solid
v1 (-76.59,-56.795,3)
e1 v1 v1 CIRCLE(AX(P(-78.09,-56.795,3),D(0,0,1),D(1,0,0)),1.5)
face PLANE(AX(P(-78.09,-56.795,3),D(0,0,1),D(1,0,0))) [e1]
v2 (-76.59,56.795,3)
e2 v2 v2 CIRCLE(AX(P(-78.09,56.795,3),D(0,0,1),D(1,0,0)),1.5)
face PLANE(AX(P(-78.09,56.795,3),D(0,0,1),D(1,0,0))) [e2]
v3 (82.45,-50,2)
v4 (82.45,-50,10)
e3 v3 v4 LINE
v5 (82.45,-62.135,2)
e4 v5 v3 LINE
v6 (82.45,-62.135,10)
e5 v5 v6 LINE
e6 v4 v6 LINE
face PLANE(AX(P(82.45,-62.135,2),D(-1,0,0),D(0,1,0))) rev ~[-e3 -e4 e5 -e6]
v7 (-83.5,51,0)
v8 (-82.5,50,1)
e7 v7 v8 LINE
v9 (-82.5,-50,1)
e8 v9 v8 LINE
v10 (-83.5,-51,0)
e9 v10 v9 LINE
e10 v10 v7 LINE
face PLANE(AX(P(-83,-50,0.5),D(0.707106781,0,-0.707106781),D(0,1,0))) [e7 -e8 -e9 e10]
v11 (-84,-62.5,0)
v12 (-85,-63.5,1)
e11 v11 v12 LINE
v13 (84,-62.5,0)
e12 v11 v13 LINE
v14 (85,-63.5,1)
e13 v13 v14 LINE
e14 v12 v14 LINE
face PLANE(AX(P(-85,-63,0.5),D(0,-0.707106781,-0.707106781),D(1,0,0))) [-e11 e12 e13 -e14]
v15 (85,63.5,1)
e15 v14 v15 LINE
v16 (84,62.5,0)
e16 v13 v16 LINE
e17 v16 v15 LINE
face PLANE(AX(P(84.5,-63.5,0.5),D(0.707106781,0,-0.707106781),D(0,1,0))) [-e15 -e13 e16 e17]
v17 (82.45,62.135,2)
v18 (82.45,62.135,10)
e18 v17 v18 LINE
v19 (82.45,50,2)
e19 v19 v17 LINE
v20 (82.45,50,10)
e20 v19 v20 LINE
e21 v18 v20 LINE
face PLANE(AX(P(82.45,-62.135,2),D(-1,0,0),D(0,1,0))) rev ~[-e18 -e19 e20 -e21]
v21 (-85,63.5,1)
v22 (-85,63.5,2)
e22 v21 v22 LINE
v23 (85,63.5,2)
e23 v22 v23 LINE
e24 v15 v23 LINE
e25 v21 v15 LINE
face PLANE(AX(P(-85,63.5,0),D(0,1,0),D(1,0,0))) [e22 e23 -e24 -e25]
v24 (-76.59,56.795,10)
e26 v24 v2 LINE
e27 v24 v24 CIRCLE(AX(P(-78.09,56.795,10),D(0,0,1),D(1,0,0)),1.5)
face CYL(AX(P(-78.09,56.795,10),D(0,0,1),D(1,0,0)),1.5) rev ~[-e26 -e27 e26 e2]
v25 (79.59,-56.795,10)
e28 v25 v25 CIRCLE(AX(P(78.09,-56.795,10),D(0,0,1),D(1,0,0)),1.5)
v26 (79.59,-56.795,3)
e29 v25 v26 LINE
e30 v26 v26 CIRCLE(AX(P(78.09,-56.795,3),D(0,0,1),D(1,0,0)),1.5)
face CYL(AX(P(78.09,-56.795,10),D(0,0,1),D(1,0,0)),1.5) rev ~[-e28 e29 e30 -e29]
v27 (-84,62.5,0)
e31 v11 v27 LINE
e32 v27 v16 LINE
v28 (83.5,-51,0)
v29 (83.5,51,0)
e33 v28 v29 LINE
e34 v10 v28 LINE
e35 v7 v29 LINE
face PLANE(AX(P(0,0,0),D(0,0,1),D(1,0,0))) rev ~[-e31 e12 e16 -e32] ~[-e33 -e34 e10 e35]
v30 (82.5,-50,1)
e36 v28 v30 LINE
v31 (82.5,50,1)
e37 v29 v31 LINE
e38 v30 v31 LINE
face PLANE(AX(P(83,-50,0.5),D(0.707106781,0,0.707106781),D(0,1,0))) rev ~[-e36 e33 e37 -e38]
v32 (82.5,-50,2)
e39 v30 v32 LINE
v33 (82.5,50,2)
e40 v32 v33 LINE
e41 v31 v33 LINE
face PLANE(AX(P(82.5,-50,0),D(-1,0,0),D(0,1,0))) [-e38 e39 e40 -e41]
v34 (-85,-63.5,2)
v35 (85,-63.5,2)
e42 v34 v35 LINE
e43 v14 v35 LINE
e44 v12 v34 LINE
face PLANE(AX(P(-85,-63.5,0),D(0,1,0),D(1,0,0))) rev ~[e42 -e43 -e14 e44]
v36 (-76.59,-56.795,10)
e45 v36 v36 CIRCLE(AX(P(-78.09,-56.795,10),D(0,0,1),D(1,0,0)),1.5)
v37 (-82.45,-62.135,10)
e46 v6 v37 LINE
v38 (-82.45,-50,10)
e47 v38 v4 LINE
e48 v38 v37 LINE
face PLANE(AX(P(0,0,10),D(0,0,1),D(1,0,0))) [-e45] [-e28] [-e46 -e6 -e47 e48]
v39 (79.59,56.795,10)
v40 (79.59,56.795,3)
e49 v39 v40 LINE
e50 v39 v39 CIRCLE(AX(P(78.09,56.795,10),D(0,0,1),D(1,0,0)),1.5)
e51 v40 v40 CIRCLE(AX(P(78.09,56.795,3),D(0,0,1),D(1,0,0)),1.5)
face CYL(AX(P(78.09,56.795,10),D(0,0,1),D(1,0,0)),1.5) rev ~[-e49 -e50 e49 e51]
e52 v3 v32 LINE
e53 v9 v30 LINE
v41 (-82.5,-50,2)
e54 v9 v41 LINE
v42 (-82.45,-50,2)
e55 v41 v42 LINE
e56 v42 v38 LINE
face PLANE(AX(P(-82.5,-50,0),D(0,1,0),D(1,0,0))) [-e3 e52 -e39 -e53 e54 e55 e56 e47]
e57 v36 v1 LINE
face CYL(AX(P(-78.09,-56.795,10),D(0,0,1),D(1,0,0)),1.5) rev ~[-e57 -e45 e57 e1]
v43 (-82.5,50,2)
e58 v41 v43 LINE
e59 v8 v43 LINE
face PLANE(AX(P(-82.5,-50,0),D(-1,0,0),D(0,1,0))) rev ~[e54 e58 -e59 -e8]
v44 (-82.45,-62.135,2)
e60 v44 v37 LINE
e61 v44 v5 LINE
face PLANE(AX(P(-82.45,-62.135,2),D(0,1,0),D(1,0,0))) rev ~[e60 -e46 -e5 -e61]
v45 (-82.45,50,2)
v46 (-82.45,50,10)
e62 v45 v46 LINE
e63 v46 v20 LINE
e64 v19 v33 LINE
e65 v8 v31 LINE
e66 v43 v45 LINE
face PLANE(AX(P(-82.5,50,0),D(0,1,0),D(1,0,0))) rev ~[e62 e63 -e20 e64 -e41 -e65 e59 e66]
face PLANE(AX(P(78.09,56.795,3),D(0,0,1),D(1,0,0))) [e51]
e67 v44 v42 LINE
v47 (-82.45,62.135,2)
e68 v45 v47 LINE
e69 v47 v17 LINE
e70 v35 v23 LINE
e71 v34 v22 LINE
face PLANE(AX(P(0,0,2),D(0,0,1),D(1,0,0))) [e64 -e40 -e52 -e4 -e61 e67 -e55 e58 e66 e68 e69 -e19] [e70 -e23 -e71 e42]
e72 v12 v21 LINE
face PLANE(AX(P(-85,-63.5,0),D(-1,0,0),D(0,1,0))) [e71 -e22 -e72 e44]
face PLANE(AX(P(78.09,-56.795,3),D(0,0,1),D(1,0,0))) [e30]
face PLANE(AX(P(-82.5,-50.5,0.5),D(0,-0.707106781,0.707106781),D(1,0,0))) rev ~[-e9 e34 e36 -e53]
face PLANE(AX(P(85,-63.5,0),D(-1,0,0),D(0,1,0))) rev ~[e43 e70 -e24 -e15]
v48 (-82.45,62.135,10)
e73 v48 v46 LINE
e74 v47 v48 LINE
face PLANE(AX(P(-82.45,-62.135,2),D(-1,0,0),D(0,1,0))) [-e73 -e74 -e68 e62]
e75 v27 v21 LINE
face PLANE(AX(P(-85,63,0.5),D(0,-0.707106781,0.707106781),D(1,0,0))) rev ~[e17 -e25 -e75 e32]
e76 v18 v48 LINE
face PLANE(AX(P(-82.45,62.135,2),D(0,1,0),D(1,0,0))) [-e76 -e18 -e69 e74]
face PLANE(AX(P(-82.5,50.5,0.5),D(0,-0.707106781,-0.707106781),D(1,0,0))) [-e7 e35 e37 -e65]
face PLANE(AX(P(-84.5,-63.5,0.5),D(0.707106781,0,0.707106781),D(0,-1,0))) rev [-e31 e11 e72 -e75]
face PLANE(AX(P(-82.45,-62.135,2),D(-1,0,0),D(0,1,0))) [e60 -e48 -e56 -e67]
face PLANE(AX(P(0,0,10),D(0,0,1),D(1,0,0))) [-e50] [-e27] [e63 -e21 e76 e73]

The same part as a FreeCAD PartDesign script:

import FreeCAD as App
import Part
import Sketcher

V = App.Vector


def edges_at(feature, points):
    """Names of the edges that pass closest to the given points."""
    edges = feature.Shape.Edges
    near = lambda p: min(range(len(edges)), key=lambda i: edges[i].distToShape(Part.Vertex(*p))[0])
    return sorted({f"Edge{near(p) + 1}" for p in points})

doc = App.newDocument("Part")
body = doc.addObject("PartDesign::Body", "Body")

sketch1 = doc.addObject("Sketcher::SketchObject", "Sketch")
body.addObject(sketch1)
sketch1.AttachmentSupport = (doc.XY_Plane, [""])
sketch1.MapMode = "FlatFace"
sketch1.addGeometry([
    Part.LineSegment(V(-90, 68, 0), V(-90, -68, 0)),
    Part.LineSegment(V(-90, -68, 0), V(90, -68, 0)),
    Part.LineSegment(V(90, -68, 0), V(90, 68, 0)),
    Part.LineSegment(V(90, 68, 0), V(-90, 68, 0)),
    Part.LineSegment(V(82, -62, 0), V(-82, -62, 0)),
    Part.LineSegment(V(-82, -62, 0), V(-82, 62, 0)),
    Part.LineSegment(V(-82, 62, 0), V(82, 62, 0)),
    Part.LineSegment(V(82, 62, 0), V(82, -62, 0)),
], False)
sketch1.addConstraint([
    Sketcher.Constraint("Coincident", 0, 2, 1, 1),
    Sketcher.Constraint("Coincident", 1, 2, 2, 1),
    Sketcher.Constraint("Coincident", 2, 2, 3, 1),
    Sketcher.Constraint("Coincident", 3, 2, 0, 1),
    Sketcher.Constraint("Coincident", 4, 2, 5, 1),
    Sketcher.Constraint("Coincident", 5, 2, 6, 1),
    Sketcher.Constraint("Coincident", 6, 2, 7, 1),
    Sketcher.Constraint("Coincident", 7, 2, 4, 1),
    Sketcher.Constraint("Vertical", 0),
    Sketcher.Constraint("Horizontal", 1),
    Sketcher.Constraint("Vertical", 2),
    Sketcher.Constraint("Horizontal", 3),
    Sketcher.Constraint("Horizontal", 4),
    Sketcher.Constraint("Vertical", 5),
    Sketcher.Constraint("Horizontal", 6),
    Sketcher.Constraint("Vertical", 7),
    Sketcher.Constraint("Symmetric", 0, 2, 2, 2, -1, 1),
    Sketcher.Constraint("Symmetric", 4, 2, 6, 2, -1, 1),
    Sketcher.Constraint("DistanceX", 1, 1, 1, 2, 180.0),
    Sketcher.Constraint("DistanceY", 0, 2, 0, 1, 136.0),
    Sketcher.Constraint("DistanceX", 4, 2, 4, 1, 164.9),
    Sketcher.Constraint("DistanceY", 5, 1, 5, 2, 124.27),
])
pad1 = doc.addObject("PartDesign::Pad", "Pad")
body.addObject(pad1)
pad1.Profile = sketch1
pad1.Length = 10
body2 = doc.addObject("PartDesign::Body", "Body001")
doc.recompute()

body.Placement = App.Placement(V(0, 0, 2), App.Rotation(V(0, 0, 1), 0))
boolean = doc.addObject("PartDesign::Boolean", "Boolean")
body2.addObject(boolean)
boolean.Type = "Fuse"
boolean.addObjects([body])
body3 = doc.addObject("PartDesign::Body", "Body002")

sketch2 = doc.addObject("Sketcher::SketchObject", "Sketch001")
body3.addObject(sketch2)
sketch2.AttachmentSupport = (doc.getObject("XY_Plane002"), [""])
sketch2.MapMode = "FlatFace"
sketch2.addGeometry([
    Part.LineSegment(V(-85, 64, 0), V(-85, -64, 0)),
    Part.LineSegment(V(-85, -64, 0), V(85, -64, 0)),
    Part.LineSegment(V(85, -64, 0), V(85, 64, 0)),
    Part.LineSegment(V(85, 64, 0), V(-85, 64, 0)),
    Part.LineSegment(V(82, -50, 0), V(-82, -50, 0)),
    Part.LineSegment(V(-82, -50, 0), V(-82, 50, 0)),
    Part.LineSegment(V(-82, 50, 0), V(82, 50, 0)),
    Part.LineSegment(V(82, 50, 0), V(82, -50, 0)),
], False)
sketch2.addConstraint([
    Sketcher.Constraint("Coincident", 0, 2, 1, 1),
    Sketcher.Constraint("Coincident", 1, 2, 2, 1),
    Sketcher.Constraint("Coincident", 2, 2, 3, 1),
    Sketcher.Constraint("Coincident", 3, 2, 0, 1),
    Sketcher.Constraint("Coincident", 4, 2, 5, 1),
    Sketcher.Constraint("Coincident", 5, 2, 6, 1),
    Sketcher.Constraint("Coincident", 6, 2, 7, 1),
    Sketcher.Constraint("Coincident", 7, 2, 4, 1),
    Sketcher.Constraint("Vertical", 0),
    Sketcher.Constraint("Horizontal", 1),
    Sketcher.Constraint("Vertical", 2),
    Sketcher.Constraint("Horizontal", 3),
    Sketcher.Constraint("Horizontal", 4),
    Sketcher.Constraint("Vertical", 5),
    Sketcher.Constraint("Horizontal", 6),
    Sketcher.Constraint("Vertical", 7),
    Sketcher.Constraint("Symmetric", 0, 2, 2, 2, -1, 1),
    Sketcher.Constraint("Symmetric", 4, 2, 6, 2, -1, 1),
    Sketcher.Constraint("DistanceX", 1, 1, 1, 2, 170.0),
    Sketcher.Constraint("DistanceX", 4, 2, 4, 1, 165.0),
    Sketcher.Constraint("DistanceY", 0, 2, 0, 1, 127.0),
    Sketcher.Constraint("DistanceY", 5, 1, 5, 2, 100.0),
])
pad2 = doc.addObject("PartDesign::Pad", "Pad001")
body3.addObject(pad2)
pad2.Profile = sketch2
pad2.Length = 10
doc.recompute()

boolean2 = doc.addObject("PartDesign::Boolean", "Boolean001")
body3.addObject(boolean2)
boolean2.Type = "Cut"
boolean2.addObjects([body2])

sketch3 = doc.addObject("Sketcher::SketchObject", "Sketch002")
body3.addObject(sketch3)
sketch3.AttachmentSupport = (doc.getObject("XY_Plane002"), [""])
sketch3.MapMode = "FlatFace"
sketch3.AttachmentOffset = App.Placement(V(0, 0, 10), App.Rotation())
sketch3.addGeometry([
    Part.Circle(V(-78.1, 56.8, 0), V(0, 0, 1), 1.5),
    Part.Circle(V(78.1, 56.8, 0), V(0, 0, 1), 1.5),
    Part.Circle(V(78.1, -56.8, 0), V(0, 0, 1), 1.5),
    Part.Circle(V(-78.1, -56.8, 0), V(0, 0, 1), 1.5),
], False)
sketch3.addConstraint([
    Sketcher.Constraint("Equal", 0, 1),
    Sketcher.Constraint("Equal", 1, 2),
    Sketcher.Constraint("Equal", 2, 3),
    Sketcher.Constraint("Symmetric", 0, 3, 2, 3, -1, 1),
    Sketcher.Constraint("Symmetric", 1, 3, 3, 3, -1, 1),
    Sketcher.Constraint("Symmetric", 0, 3, 1, 3, -2),
    Sketcher.Constraint("Diameter", 0, 3.0),
    Sketcher.Constraint("DistanceX", 0, 3, -1, 1, 78.09),
    Sketcher.Constraint("DistanceY", 2, 3, 1, 3, 113.59),
])
pocket1 = doc.addObject("PartDesign::Pocket", "Pocket")
body3.addObject(pocket1)
pocket1.Profile = sketch3
pocket1.Length = 7
doc.recompute()

chamfer = doc.addObject("PartDesign::Chamfer", "Chamfer")
body3.addObject(chamfer)
chamfer.Base = (pocket1, edges_at(pocket1, [
    (82.5, 0, 0),
    (0, -50, 0),
    (0, -63.5, 0),
    (85, 0, 0),
    (0, 63.5, 0),
    (-85, 0, 0),
    (0, 50, 0),
    (-82.5, 0, 0),
]))
chamfer.Size = 1

doc.recompute()
